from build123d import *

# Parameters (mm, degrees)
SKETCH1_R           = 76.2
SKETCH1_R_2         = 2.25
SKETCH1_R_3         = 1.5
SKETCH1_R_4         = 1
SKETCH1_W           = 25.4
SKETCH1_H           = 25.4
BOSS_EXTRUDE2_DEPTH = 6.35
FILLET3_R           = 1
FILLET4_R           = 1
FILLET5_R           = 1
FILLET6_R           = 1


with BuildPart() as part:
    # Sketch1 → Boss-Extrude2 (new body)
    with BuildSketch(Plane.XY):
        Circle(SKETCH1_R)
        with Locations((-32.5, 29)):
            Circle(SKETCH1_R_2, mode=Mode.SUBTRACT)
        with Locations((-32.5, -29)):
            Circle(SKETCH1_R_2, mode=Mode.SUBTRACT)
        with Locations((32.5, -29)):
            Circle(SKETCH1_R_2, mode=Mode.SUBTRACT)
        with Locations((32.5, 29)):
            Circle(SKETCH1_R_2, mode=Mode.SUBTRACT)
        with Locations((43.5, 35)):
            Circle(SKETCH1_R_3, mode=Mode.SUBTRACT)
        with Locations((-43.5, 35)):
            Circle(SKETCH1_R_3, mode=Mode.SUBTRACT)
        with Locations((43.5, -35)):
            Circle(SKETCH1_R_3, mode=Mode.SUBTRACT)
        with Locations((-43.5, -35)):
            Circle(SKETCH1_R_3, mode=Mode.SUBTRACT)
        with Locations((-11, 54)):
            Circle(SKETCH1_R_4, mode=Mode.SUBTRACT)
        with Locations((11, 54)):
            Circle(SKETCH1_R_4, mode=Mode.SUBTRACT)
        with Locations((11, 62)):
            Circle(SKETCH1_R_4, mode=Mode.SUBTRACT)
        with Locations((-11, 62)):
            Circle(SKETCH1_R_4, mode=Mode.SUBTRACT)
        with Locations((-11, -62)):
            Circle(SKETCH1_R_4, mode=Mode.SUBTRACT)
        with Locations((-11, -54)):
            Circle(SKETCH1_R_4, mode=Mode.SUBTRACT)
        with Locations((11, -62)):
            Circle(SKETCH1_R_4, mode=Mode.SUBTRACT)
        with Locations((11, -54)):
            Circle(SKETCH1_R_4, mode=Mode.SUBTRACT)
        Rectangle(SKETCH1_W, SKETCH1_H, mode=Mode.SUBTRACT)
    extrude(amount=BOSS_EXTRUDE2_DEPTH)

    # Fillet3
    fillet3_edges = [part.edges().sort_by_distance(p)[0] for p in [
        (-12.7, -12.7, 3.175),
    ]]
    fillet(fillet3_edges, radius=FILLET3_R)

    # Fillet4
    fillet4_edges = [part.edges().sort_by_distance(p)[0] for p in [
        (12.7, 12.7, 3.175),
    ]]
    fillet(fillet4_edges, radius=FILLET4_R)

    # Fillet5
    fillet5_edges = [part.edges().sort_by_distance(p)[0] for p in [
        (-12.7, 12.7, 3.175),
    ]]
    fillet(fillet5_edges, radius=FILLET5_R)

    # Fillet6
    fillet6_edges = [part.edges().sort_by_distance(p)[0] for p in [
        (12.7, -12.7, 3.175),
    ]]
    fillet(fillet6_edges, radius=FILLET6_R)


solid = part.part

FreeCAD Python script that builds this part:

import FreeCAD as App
import Part
import Sketcher
from FreeCAD import Vector
Q = App.Units.Quantity


def edges_at(feature, points):
    """Names of the edges that pass closest to the given points."""
    edges = feature.Shape.Edges
    near = lambda p: min(range(len(edges)), key=lambda i: edges[i].distToShape(Part.Vertex(*p))[0])
    return sorted({f"Edge{near(p) + 1}" for p in points})

doc = App.newDocument("Part")
body = doc.addObject("PartDesign::Body", "Body")

# Sketch on XY plane
sketch1 = doc.addObject("Sketcher::SketchObject", "Sketch")
body.addObject(sketch1)
sketch1.AttachmentSupport = (doc.XY_Plane, [""])
sketch1.MapMode = "FlatFace"
sketch1.addGeometry(Part.Circle(Vector(0, 0, 0), Vector(0, 0, 1), 76.2), False)
sketch1.addGeometry(Part.Circle(Vector(-43.5, -35, 0), Vector(0, 0, 1), 1.5), False)
sketch1.addGeometry(Part.Circle(Vector(-11, -62, 0), Vector(0, 0, 1), 1), False)
sketch1.addGeometry(Part.Circle(Vector(-11, -54, 0), Vector(0, 0, 1), 1), False)
sketch1.addGeometry(Part.Circle(Vector(-32.5, -29, 0), Vector(0, 0, 1), 2.2), False)
sketch1.addGeometry(Part.Circle(Vector(11, -62, 0), Vector(0, 0, 1), 1), False)
sketch1.addGeometry(Part.Circle(Vector(11, -54, 0), Vector(0, 0, 1), 1), False)
sketch1.addGeometry(Part.Circle(Vector(43.5, -35, 0), Vector(0, 0, 1), 1.5), False)
sketch1.addGeometry(Part.Circle(Vector(32.5, -29, 0), Vector(0, 0, 1), 2.2), False)
sketch1.addGeometry(Part.Circle(Vector(-32.5, 29, 0), Vector(0, 0, 1), 2.2), False)
sketch1.addGeometry(Part.Circle(Vector(-43.5, 35, 0), Vector(0, 0, 1), 1.5), False)
sketch1.addGeometry(Part.Circle(Vector(-11, 54, 0), Vector(0, 0, 1), 1), False)
sketch1.addGeometry(Part.Circle(Vector(-11, 62, 0), Vector(0, 0, 1), 1), False)
sketch1.addGeometry(Part.LineSegment(Vector(12.7, -12.7, 0), Vector(-12.7, -12.7, 0)), False)
sketch1.addGeometry(Part.LineSegment(Vector(-12.7, -12.7, 0), Vector(-12.7, 12.7, 0)), False)
sketch1.addGeometry(Part.LineSegment(Vector(-12.7, 12.7, 0), Vector(12.7, 12.7, 0)), False)
sketch1.addGeometry(Part.LineSegment(Vector(12.7, 12.7, 0), Vector(12.7, -12.7, 0)), False)
sketch1.addGeometry(Part.Circle(Vector(32.5, 29, 0), Vector(0, 0, 1), 2.2), False)
sketch1.addGeometry(Part.Circle(Vector(11, 54, 0), Vector(0, 0, 1), 1), False)
sketch1.addGeometry(Part.Circle(Vector(11, 62, 0), Vector(0, 0, 1), 1), False)
sketch1.addGeometry(Part.Circle(Vector(43.5, 35, 0), Vector(0, 0, 1), 1.5), False)
sketch1.addConstraint(Sketcher.Constraint("Coincident", 13, 2, 14, 1))
sketch1.addConstraint(Sketcher.Constraint("Coincident", 14, 2, 15, 1))
sketch1.addConstraint(Sketcher.Constraint("Coincident", 15, 2, 16, 1))
sketch1.addConstraint(Sketcher.Constraint("Coincident", 16, 2, 13, 1))
sketch1.addConstraint(Sketcher.Constraint("Horizontal", 13))
sketch1.addConstraint(Sketcher.Constraint("Vertical", 14))
sketch1.addConstraint(Sketcher.Constraint("Horizontal", 15))
sketch1.addConstraint(Sketcher.Constraint("Vertical", 16))
sketch1.addConstraint(Sketcher.Constraint("Coincident", 0, 3, -1, 1))
sketch1.addConstraint(Sketcher.Constraint("Equal", 2, 3))
sketch1.addConstraint(Sketcher.Constraint("Equal", 3, 5))
sketch1.addConstraint(Sketcher.Constraint("Equal", 5, 6))
sketch1.addConstraint(Sketcher.Constraint("Equal", 1, 7))
sketch1.addConstraint(Sketcher.Constraint("Equal", 4, 8))
sketch1.addConstraint(Sketcher.Constraint("Equal", 8, 9))
sketch1.addConstraint(Sketcher.Constraint("Equal", 7, 10))
sketch1.addConstraint(Sketcher.Constraint("Equal", 6, 11))
sketch1.addConstraint(Sketcher.Constraint("Equal", 11, 12))
sketch1.addConstraint(Sketcher.Constraint("Equal", 9, 17))
sketch1.addConstraint(Sketcher.Constraint("Equal", 12, 18))
sketch1.addConstraint(Sketcher.Constraint("Equal", 18, 19))
sketch1.addConstraint(Sketcher.Constraint("Equal", 10, 20))
sketch1.addConstraint(Sketcher.Constraint("Symmetric", 8, 3, 9, 3, -1, 1))
sketch1.addConstraint(Sketcher.Constraint("Symmetric", 7, 3, 10, 3, -1, 1))
sketch1.addConstraint(Sketcher.Constraint("Symmetric", 6, 3, 11, 3, -1, 1))
sketch1.addConstraint(Sketcher.Constraint("Symmetric", 5, 3, 12, 3, -1, 1))
sketch1.addConstraint(Sketcher.Constraint("Symmetric", 4, 3, 17, 3, -1, 1))
sketch1.addConstraint(Sketcher.Constraint("Symmetric", 3, 3, 18, 3, -1, 1))
sketch1.addConstraint(Sketcher.Constraint("Symmetric", 2, 3, 19, 3, -1, 1))
sketch1.addConstraint(Sketcher.Constraint("Symmetric", 1, 3, 20, 3, -1, 1))
sketch1.addConstraint(Sketcher.Constraint("Symmetric", 13, 2, 15, 2, -1, 1))
sketch1.addConstraint(Sketcher.Constraint("Symmetric", 2, 3, 5, 3, -2))
sketch1.addConstraint(Sketcher.Constraint("Symmetric", 3, 3, 6, 3, -2))
sketch1.addConstraint(Sketcher.Constraint("Symmetric", 1, 3, 7, 3, -2))
sketch1.addConstraint(Sketcher.Constraint("Symmetric", 4, 3, 8, 3, -2))
sketch1.addConstraint(Sketcher.Constraint("Vertical", 2, 3, 3, 3))
sketch1.addConstraint(Sketcher.Constraint("Equal", 15, 14))
sketch1.addConstraint(Sketcher.Constraint("Diameter", 1, Q("3 mm")))
sketch1.addConstraint(Sketcher.Constraint("Diameter", 2, Q("2 mm")))
sketch1.addConstraint(Sketcher.Constraint("Diameter", 0, Q("152.4 mm")))
sketch1.addConstraint(Sketcher.Constraint("Diameter", 4, Q("4.5 mm")))
sketch1.addConstraint(Sketcher.Constraint("DistanceX", 13, 2, 13, 1, Q("25.4 mm")))
sketch1.addConstraint(Sketcher.Constraint("DistanceY", 1, 3, -1, 1, Q("35 mm")))
sketch1.addConstraint(Sketcher.Constraint("DistanceX", 2, 3, -1, 1, Q("11 mm")))
sketch1.addConstraint(Sketcher.Constraint("DistanceY", 2, 3, -1, 1, Q("62 mm")))
sketch1.addConstraint(Sketcher.Constraint("DistanceY", 3, 3, -1, 1, Q("54 mm")))
sketch1.addConstraint(Sketcher.Constraint("DistanceY", 4, 3, -1, 1, Q("29 mm")))
sketch1.addConstraint(Sketcher.Constraint("DistanceX", 1, 3, 4, 3, Q("11 mm")))
sketch1.addConstraint(Sketcher.Constraint("DistanceX", 9, 3, 8, 3, Q("65 mm")))
pad1 = doc.addObject("PartDesign::Pad", "Pad")
body.addObject(pad1)
pad1.Profile = sketch1
pad1.Length = 6.35
doc.recompute()

fillet = doc.addObject("PartDesign::Fillet", "Fillet")
body.addObject(fillet)
fillet.Base = (pad1, edges_at(pad1, [(-12.7, -12.7, 3.175)]))
fillet.Radius = 1
doc.recompute()

fillet2 = doc.addObject("PartDesign::Fillet", "Fillet001")
body.addObject(fillet2)
fillet2.Base = (fillet, edges_at(fillet, [(12.7, 12.7, 3.175)]))
fillet2.Radius = 1
doc.recompute()

fillet3 = doc.addObject("PartDesign::Fillet", "Fillet002")
body.addObject(fillet3)
fillet3.Base = (fillet2, edges_at(fillet2, [(-12.7, 12.7, 3.175)]))
fillet3.Radius = 1
doc.recompute()

fillet4 = doc.addObject("PartDesign::Fillet", "Fillet003")
body.addObject(fillet4)
fillet4.Base = (fillet3, edges_at(fillet3, [(12.7, -12.7, 3.175)]))
fillet4.Radius = 1

doc.recompute()
